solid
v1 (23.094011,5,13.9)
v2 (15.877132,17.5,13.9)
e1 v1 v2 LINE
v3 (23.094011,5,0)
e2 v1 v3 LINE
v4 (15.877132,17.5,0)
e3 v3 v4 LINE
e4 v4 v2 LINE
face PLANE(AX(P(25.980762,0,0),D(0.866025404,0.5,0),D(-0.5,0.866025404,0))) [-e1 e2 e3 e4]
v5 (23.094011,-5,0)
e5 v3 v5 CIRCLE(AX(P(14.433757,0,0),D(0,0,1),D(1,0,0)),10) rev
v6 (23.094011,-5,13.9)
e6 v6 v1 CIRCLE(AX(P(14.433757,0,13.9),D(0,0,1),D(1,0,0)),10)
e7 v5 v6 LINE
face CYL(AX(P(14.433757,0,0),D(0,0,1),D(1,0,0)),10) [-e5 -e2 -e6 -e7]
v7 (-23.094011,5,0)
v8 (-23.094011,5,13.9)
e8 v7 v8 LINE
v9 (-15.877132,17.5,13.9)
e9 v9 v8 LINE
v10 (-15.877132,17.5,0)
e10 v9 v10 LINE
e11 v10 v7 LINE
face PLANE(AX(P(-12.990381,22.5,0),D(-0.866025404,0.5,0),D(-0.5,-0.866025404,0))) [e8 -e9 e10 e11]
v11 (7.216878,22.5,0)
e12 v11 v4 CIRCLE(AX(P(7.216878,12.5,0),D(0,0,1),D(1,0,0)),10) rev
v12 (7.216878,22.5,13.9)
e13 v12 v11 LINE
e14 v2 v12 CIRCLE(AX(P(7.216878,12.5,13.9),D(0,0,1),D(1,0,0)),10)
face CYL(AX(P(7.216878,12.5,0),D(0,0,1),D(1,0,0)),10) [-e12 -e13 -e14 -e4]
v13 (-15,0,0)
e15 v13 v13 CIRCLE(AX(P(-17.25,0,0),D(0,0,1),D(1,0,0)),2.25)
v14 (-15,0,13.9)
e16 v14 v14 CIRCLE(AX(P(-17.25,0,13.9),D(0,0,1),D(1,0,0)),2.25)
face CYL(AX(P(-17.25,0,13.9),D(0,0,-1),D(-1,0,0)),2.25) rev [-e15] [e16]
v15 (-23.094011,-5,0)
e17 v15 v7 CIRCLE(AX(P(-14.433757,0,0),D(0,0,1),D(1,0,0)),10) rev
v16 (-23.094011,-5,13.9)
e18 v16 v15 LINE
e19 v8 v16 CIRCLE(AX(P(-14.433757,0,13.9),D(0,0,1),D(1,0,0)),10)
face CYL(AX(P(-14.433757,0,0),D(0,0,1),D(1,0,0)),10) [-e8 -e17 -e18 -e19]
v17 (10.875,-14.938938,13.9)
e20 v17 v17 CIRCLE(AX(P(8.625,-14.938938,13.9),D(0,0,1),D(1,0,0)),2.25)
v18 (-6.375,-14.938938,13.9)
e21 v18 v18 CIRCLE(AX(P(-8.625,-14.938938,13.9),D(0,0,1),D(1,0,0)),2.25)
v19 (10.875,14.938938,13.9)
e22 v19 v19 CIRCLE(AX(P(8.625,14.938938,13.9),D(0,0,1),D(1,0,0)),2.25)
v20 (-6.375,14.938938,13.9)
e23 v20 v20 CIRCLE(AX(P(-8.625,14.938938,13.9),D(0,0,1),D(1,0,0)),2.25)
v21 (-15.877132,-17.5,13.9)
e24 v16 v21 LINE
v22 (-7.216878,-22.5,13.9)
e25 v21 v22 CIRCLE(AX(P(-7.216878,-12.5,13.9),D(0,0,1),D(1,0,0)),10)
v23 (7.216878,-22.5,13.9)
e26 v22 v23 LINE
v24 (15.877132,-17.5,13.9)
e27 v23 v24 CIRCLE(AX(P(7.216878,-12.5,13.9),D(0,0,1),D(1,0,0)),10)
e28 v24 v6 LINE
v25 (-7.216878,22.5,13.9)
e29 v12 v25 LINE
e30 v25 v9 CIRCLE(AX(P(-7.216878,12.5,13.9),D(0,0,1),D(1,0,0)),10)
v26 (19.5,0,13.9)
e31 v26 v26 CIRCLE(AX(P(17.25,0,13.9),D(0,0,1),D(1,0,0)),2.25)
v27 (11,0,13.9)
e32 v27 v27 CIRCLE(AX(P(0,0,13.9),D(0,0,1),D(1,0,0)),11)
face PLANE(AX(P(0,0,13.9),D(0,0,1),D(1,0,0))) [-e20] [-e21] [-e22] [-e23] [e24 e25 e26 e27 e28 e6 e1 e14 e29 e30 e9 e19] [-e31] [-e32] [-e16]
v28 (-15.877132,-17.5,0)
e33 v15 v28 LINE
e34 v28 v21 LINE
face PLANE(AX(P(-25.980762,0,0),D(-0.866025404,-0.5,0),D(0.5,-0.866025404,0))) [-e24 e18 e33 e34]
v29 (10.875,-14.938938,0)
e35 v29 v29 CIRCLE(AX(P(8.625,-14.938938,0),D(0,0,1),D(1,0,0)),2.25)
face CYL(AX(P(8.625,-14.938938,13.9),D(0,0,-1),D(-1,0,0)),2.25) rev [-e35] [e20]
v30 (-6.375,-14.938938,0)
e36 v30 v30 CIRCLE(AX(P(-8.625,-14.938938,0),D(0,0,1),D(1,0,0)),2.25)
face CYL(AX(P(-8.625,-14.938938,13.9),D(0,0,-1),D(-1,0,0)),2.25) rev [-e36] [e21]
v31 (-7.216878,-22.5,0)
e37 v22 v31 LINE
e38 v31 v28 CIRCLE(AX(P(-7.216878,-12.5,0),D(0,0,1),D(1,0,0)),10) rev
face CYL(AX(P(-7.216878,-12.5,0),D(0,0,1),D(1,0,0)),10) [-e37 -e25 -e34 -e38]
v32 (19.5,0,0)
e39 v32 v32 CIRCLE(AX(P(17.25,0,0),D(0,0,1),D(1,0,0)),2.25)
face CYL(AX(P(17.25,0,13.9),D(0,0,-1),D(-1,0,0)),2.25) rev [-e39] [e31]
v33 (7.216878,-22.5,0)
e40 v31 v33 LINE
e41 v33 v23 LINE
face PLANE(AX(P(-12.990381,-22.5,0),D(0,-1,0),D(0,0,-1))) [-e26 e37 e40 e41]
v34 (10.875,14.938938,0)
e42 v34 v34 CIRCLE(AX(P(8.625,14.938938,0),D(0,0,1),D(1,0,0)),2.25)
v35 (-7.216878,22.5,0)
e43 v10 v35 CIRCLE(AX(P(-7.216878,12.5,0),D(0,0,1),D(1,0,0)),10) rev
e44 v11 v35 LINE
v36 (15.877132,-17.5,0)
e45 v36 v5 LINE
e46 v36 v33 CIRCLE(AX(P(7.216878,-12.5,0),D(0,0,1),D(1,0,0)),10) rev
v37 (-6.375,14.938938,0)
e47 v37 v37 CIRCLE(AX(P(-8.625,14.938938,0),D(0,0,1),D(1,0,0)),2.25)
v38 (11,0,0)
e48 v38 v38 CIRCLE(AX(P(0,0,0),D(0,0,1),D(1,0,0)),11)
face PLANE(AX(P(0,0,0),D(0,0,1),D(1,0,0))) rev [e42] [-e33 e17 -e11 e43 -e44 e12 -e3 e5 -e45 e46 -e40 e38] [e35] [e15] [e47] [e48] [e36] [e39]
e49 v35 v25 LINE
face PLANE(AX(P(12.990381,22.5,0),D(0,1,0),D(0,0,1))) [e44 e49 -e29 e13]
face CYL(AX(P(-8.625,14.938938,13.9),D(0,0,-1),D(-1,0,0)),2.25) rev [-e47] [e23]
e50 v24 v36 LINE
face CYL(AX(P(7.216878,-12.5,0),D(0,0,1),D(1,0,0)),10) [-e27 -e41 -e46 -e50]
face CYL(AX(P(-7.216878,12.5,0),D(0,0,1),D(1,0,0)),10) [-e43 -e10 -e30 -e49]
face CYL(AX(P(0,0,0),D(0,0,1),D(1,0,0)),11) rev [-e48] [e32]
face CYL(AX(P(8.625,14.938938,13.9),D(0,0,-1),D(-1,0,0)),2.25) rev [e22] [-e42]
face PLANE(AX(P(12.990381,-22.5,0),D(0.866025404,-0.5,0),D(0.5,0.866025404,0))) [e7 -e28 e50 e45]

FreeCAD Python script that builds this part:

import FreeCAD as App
import Part
import Sketcher
Q = App.Units.Quantity


def edges_at(feature, points):
    """Names of the edges that pass closest to the given points."""
    edges = feature.Shape.Edges
    near = lambda p: min(range(len(edges)), key=lambda i: edges[i].distToShape(Part.Vertex(*p))[0])
    return sorted({f"Edge{near(p) + 1}" for p in points})

doc = App.newDocument("Part")
params = doc.addObject("Spreadsheet::Sheet", "Params")
for row, (alias, value) in enumerate([
    ("sketch1_diameter", "58.8 mm"),
    ("sketch1_diameter2", "4.5 mm"),
    ("pad1_length", "13.9 mm"),
    ("sketch2_diameter", "22 mm"),
    ("pocket1_length", "44.839822 mm"),
    ("fillet_radius", "10 mm"),
], start=1):
    params.set(f"A{row}", alias)
    params.set(f"B{row}", "=" + value)
    params.setAlias(f"B{row}", alias)

body = doc.addObject("PartDesign::Body", "Body")

# Sketch on XY plane
sketch1 = body.newObject("Sketcher::SketchObject", "Sketch")
sketch1.AttachmentSupport = (doc.getObject("XY_Plane"), [""])
sketch1.MapMode = "FlatFace"
sketch1.addGeometry(Part.Circle(App.Vector(0, 0, 0), App.Vector(0, 0, 1), 29.4), False)
sketch1.addGeometry(Part.Circle(App.Vector(-8.625, -14.938938, 0), App.Vector(0, 0, 1), 2.25), False)
sketch1.addGeometry(Part.Circle(App.Vector(8.625, -14.938938, 0), App.Vector(0, 0, 1), 2.25), False)
sketch1.addGeometry(Part.Circle(App.Vector(-17.25, 0, 0), App.Vector(0, 0, 1), 2.25), False)
sketch1.addGeometry(Part.Circle(App.Vector(-8.625, 14.938938, 0), App.Vector(0, 0, 1), 2.25), False)
sketch1.addGeometry(Part.Circle(App.Vector(17.25, 0, 0), App.Vector(0, 0, 1), 2.25), False)
sketch1.addGeometry(Part.Circle(App.Vector(8.625, 14.938938, 0), App.Vector(0, 0, 1), 2.25), False)
sketch1.addConstraint(Sketcher.Constraint("Coincident", 0, 3, -1, 1))
sketch1.addConstraint(Sketcher.Constraint("Equal", 1, 2))
sketch1.addConstraint(Sketcher.Constraint("Equal", 2, 3))
sketch1.addConstraint(Sketcher.Constraint("Equal", 3, 4))
sketch1.addConstraint(Sketcher.Constraint("Equal", 4, 5))
sketch1.addConstraint(Sketcher.Constraint("Equal", 5, 6))
sketch1.addConstraint(Sketcher.Constraint("Symmetric", 2, 3, 4, 3, -1, 1))
sketch1.addConstraint(Sketcher.Constraint("Symmetric", 3, 3, 5, 3, -1, 1))
sketch1.addConstraint(Sketcher.Constraint("Symmetric", 1, 3, 6, 3, -1, 1))
sketch1.addConstraint(Sketcher.Constraint("Symmetric", 1, 3, 2, 3, -2))
sketch1.addConstraint(Sketcher.Constraint("PointOnObject", 3, 3, -1))
sketch1.addConstraint(Sketcher.Constraint("Diameter", 0, Q("58.8 mm")))
sketch1.addConstraint(Sketcher.Constraint("Diameter", 1, Q("4.5 mm")))
sketch1.addConstraint(Sketcher.Constraint("DistanceX", 3, 3, 5, 3, Q("34.5 mm")))
sketch1.addConstraint(Sketcher.Constraint("DistanceX", 1, 3, 2, 3, Q("17.25 mm")))
sketch1.addConstraint(Sketcher.Constraint("DistanceY", 1, 3, -1, 1, Q("14.938938 mm")))
sketch1.setExpression("Constraints[11]", "Params.sketch1_diameter")
sketch1.setExpression("Constraints[12]", "Params.sketch1_diameter2")
pad1 = body.newObject("PartDesign::Pad", "Pad")
pad1.Profile = sketch1
pad1.setExpression("Length", "Params.pad1_length")

# Sketch on XY plane
sketch2 = body.newObject("Sketcher::SketchObject", "Sketch001")
sketch2.AttachmentSupport = (doc.getObject("XY_Plane"), [""])
sketch2.MapMode = "FlatFace"
sketch2.AttachmentOffset = App.Placement(App.Vector(0, 0, 13.9), App.Rotation())
sketch2.addGeometry(Part.LineSegment(App.Vector(-38.831, 38.831, 0), App.Vector(-38.831, -38.831, 0)), False)
sketch2.addGeometry(Part.LineSegment(App.Vector(-38.831, -38.831, 0), App.Vector(38.831, -38.831, 0)), False)
sketch2.addGeometry(Part.LineSegment(App.Vector(38.831, -38.831, 0), App.Vector(38.831, 38.831, 0)), False)
sketch2.addGeometry(Part.LineSegment(App.Vector(38.831, 38.831, 0), App.Vector(-38.831, 38.831, 0)), False)
sketch2.addGeometry(Part.LineSegment(App.Vector(-12.990381, 22.5, 0), App.Vector(12.990381, 22.5, 0)), False)
sketch2.addGeometry(Part.LineSegment(App.Vector(12.990381, 22.5, 0), App.Vector(25.980762, 0, 0)), False)
sketch2.addGeometry(Part.LineSegment(App.Vector(25.980762, 0, 0), App.Vector(12.990381, -22.5, 0)), False)
sketch2.addGeometry(Part.LineSegment(App.Vector(12.990381, -22.5, 0), App.Vector(-12.990381, -22.5, 0)), False)
sketch2.addGeometry(Part.LineSegment(App.Vector(-12.990381, -22.5, 0), App.Vector(-25.980762, 0, 0)), False)
sketch2.addGeometry(Part.LineSegment(App.Vector(-25.980762, 0, 0), App.Vector(-12.990381, 22.5, 0)), False)
sketch2.addGeometry(Part.Circle(App.Vector(0, 0, 0), App.Vector(0, 0, 1), 11), False)
sketch2.addConstraint(Sketcher.Constraint("Coincident", 0, 2, 1, 1))
sketch2.addConstraint(Sketcher.Constraint("Coincident", 1, 2, 2, 1))
sketch2.addConstraint(Sketcher.Constraint("Coincident", 2, 2, 3, 1))
sketch2.addConstraint(Sketcher.Constraint("Coincident", 3, 2, 0, 1))
sketch2.addConstraint(Sketcher.Constraint("Coincident", 4, 2, 5, 1))
sketch2.addConstraint(Sketcher.Constraint("Coincident", 5, 2, 6, 1))
sketch2.addConstraint(Sketcher.Constraint("Coincident", 6, 2, 7, 1))
sketch2.addConstraint(Sketcher.Constraint("Coincident", 7, 2, 8, 1))
sketch2.addConstraint(Sketcher.Constraint("Coincident", 8, 2, 9, 1))
sketch2.addConstraint(Sketcher.Constraint("Coincident", 9, 2, 4, 1))
sketch2.addConstraint(Sketcher.Constraint("Vertical", 0))
sketch2.addConstraint(Sketcher.Constraint("Horizontal", 1))
sketch2.addConstraint(Sketcher.Constraint("Vertical", 2))
sketch2.addConstraint(Sketcher.Constraint("Horizontal", 3))
sketch2.addConstraint(Sketcher.Constraint("Horizontal", 4))
sketch2.addConstraint(Sketcher.Constraint("Horizontal", 7))
sketch2.addConstraint(Sketcher.Constraint("Coincident", 10, 3, -1, 1))
sketch2.addConstraint(Sketcher.Constraint("Symmetric", 0, 2, 2, 2, -1, 1))
sketch2.addConstraint(Sketcher.Constraint("Symmetric", 4, 2, 7, 2, -1, 1))
sketch2.addConstraint(Sketcher.Constraint("Symmetric", 5, 2, 8, 2, -1, 1))
sketch2.addConstraint(Sketcher.Constraint("PointOnObject", 5, 2, -1))
sketch2.addConstraint(Sketcher.Constraint("Parallel", 6, 9))
sketch2.addConstraint(Sketcher.Constraint("Vertical", 4, 2, 6, 2))
sketch2.addConstraint(Sketcher.Constraint("Equal", 3, 0))
sketch2.addConstraint(Sketcher.Constraint("Diameter", 10, Q("22 mm")))
sketch2.addConstraint(Sketcher.Constraint("Angle", 5, Q("-60 deg")))
sketch2.addConstraint(Sketcher.Constraint("DistanceY", 6, 2, 4, 2, Q("45 mm")))
sketch2.addConstraint(Sketcher.Constraint("DistanceX", 1, 1, 1, 2, Q("77.662 mm")))
sketch2.addConstraint(Sketcher.Constraint("DistanceX", 4, 1, 4, 2, Q("25.980762 mm")))
sketch2.setExpression("Constraints[24]", "Params.sketch2_diameter")
pocket1 = body.newObject("PartDesign::Pocket", "Pocket")
pocket1.Profile = sketch2
pocket1.setExpression("Length", "Params.pocket1_length")
doc.recompute()

fillet = body.newObject("PartDesign::Fillet", "Fillet")
fillet.Base = (pocket1, edges_at(pocket1, [
    (25.981, 0, 6.95),
    (12.99, -22.5, 6.95),
    (-12.99, -22.5, 6.95),
    (-25.981, 0, 6.95),
    (-12.99, 22.5, 6.95),
    (12.99, 22.5, 6.95),
]))
fillet.setExpression("Radius", "Params.fillet_radius")

doc.recompute()
